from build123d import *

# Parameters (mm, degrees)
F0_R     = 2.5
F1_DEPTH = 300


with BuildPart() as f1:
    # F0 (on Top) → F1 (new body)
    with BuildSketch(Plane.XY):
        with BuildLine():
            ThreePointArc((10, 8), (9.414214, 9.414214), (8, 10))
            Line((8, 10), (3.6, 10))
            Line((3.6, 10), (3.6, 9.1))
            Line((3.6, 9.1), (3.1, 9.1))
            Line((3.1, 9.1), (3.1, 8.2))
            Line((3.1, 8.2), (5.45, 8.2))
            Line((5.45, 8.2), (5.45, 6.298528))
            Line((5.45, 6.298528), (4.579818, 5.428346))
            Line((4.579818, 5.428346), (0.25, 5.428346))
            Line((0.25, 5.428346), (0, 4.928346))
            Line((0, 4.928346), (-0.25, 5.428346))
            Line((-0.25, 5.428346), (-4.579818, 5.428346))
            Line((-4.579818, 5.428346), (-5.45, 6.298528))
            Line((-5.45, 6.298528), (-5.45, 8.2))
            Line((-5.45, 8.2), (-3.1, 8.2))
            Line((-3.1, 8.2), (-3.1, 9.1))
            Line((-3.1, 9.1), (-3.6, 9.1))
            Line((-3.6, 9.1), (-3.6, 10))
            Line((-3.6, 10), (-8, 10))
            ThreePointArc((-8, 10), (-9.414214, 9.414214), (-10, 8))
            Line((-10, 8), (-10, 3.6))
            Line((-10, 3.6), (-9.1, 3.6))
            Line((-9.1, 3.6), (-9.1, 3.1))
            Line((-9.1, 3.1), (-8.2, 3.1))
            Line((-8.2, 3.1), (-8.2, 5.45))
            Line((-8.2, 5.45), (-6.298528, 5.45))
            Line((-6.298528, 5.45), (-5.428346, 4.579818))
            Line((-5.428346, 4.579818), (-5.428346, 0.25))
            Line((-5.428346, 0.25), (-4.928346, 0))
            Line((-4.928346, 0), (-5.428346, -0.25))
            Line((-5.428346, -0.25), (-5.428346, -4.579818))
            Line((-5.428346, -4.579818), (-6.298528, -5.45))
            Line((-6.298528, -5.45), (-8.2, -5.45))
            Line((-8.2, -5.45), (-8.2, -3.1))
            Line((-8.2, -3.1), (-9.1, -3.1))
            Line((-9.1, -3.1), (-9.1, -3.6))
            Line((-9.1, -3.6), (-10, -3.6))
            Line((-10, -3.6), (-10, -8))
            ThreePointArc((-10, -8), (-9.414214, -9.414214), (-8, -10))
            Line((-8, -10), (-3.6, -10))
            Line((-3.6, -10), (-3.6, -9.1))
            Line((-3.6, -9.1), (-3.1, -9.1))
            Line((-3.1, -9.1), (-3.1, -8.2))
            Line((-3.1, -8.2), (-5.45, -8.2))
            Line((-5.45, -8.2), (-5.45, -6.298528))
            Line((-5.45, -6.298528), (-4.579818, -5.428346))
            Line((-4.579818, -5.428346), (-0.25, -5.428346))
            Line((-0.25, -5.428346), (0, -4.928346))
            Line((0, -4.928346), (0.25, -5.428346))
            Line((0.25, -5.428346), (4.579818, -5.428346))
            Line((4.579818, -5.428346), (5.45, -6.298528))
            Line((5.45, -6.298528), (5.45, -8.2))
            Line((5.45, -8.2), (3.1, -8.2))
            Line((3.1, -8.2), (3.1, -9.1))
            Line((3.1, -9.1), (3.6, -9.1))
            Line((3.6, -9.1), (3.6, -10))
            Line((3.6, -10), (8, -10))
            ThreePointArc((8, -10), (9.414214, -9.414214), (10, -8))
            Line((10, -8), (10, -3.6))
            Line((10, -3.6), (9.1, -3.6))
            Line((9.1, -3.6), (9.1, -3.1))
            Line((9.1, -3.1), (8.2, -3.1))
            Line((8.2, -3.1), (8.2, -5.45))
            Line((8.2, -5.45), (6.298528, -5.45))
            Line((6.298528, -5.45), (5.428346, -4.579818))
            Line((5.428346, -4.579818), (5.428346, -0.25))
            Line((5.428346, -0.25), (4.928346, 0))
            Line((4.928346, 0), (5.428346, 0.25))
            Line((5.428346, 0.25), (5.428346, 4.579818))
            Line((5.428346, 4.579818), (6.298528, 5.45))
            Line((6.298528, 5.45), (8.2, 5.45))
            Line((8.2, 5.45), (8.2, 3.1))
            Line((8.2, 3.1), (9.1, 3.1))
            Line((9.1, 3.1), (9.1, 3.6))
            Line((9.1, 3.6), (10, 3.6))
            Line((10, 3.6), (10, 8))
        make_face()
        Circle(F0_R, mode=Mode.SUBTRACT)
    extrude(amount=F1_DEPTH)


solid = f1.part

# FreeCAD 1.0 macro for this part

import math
import FreeCAD as App
import Part
import Sketcher

doc = App.newDocument("Part")
body = doc.addObject("PartDesign::Body", "Body")

# Sketch on XY plane
sketch1 = body.newObject("Sketcher::SketchObject", "Sketch")
sketch1.AttachmentSupport = (doc.getObject("XY_Plane"), [""])
sketch1.MapMode = "FlatFace"
sketch1.addGeometry(Part.ArcOfCircle(Part.Circle(App.Vector(8, 8, 0), App.Vector(0, 0, 1), 2), math.radians(0), math.radians(90)), False)
sketch1.addGeometry(Part.LineSegment(App.Vector(8, 10, 0), App.Vector(3.6, 10, 0)), False)
sketch1.addGeometry(Part.LineSegment(App.Vector(3.6, 10, 0), App.Vector(3.6, 9.1, 0)), False)
sketch1.addGeometry(Part.LineSegment(App.Vector(3.6, 9.1, 0), App.Vector(3.1, 9.1, 0)), False)
sketch1.addGeometry(Part.LineSegment(App.Vector(3.1, 9.1, 0), App.Vector(3.1, 8.2, 0)), False)
sketch1.addGeometry(Part.LineSegment(App.Vector(3.1, 8.2, 0), App.Vector(5.5, 8.2, 0)), False)
sketch1.addGeometry(Part.LineSegment(App.Vector(5.5, 8.2, 0), App.Vector(5.5, 6.3, 0)), False)
sketch1.addGeometry(Part.LineSegment(App.Vector(5.5, 6.3, 0), App.Vector(4.6, 5.4, 0)), False)
sketch1.addGeometry(Part.LineSegment(App.Vector(4.6, 5.4, 0), App.Vector(0.2, 5.4, 0)), False)
sketch1.addGeometry(Part.LineSegment(App.Vector(0.2, 5.4, 0), App.Vector(0, 4.9, 0)), False)
sketch1.addGeometry(Part.LineSegment(App.Vector(0, 4.9, 0), App.Vector(-0.2, 5.4, 0)), False)
sketch1.addGeometry(Part.LineSegment(App.Vector(-0.2, 5.4, 0), App.Vector(-4.6, 5.4, 0)), False)
sketch1.addGeometry(Part.LineSegment(App.Vector(-4.6, 5.4, 0), App.Vector(-5.5, 6.3, 0)), False)
sketch1.addGeometry(Part.LineSegment(App.Vector(-5.5, 6.3, 0), App.Vector(-5.5, 8.2, 0)), False)
sketch1.addGeometry(Part.LineSegment(App.Vector(-5.5, 8.2, 0), App.Vector(-3.1, 8.2, 0)), False)
sketch1.addGeometry(Part.LineSegment(App.Vector(-3.1, 8.2, 0), App.Vector(-3.1, 9.1, 0)), False)
sketch1.addGeometry(Part.LineSegment(App.Vector(-3.1, 9.1, 0), App.Vector(-3.6, 9.1, 0)), False)
sketch1.addGeometry(Part.LineSegment(App.Vector(-3.6, 9.1, 0), App.Vector(-3.6, 10, 0)), False)
sketch1.addGeometry(Part.LineSegment(App.Vector(-3.6, 10, 0), App.Vector(-8, 10, 0)), False)
sketch1.addGeometry(Part.ArcOfCircle(Part.Circle(App.Vector(-8, 8, 0), App.Vector(0, 0, 1), 2), math.radians(90), math.radians(180)), False)
sketch1.addGeometry(Part.LineSegment(App.Vector(-10, 8, 0), App.Vector(-10, 3.6, 0)), False)
sketch1.addGeometry(Part.LineSegment(App.Vector(-10, 3.6, 0), App.Vector(-9.1, 3.6, 0)), False)
sketch1.addGeometry(Part.LineSegment(App.Vector(-9.1, 3.6, 0), App.Vector(-9.1, 3.1, 0)), False)
sketch1.addGeometry(Part.LineSegment(App.Vector(-9.1, 3.1, 0), App.Vector(-8.2, 3.1, 0)), False)
sketch1.addGeometry(Part.LineSegment(App.Vector(-8.2, 3.1, 0), App.Vector(-8.2, 5.5, 0)), False)
sketch1.addGeometry(Part.LineSegment(App.Vector(-8.2, 5.5, 0), App.Vector(-6.3, 5.5, 0)), False)
sketch1.addGeometry(Part.LineSegment(App.Vector(-6.3, 5.5, 0), App.Vector(-5.4, 4.6, 0)), False)
sketch1.addGeometry(Part.LineSegment(App.Vector(-5.4, 4.6, 0), App.Vector(-5.4, 0.2, 0)), False)
sketch1.addGeometry(Part.LineSegment(App.Vector(-5.4, 0.2, 0), App.Vector(-4.9, 0, 0)), False)
sketch1.addGeometry(Part.LineSegment(App.Vector(-4.9, 0, 0), App.Vector(-5.4, -0.2, 0)), False)
sketch1.addGeometry(Part.LineSegment(App.Vector(-5.4, -0.2, 0), App.Vector(-5.4, -4.6, 0)), False)
sketch1.addGeometry(Part.LineSegment(App.Vector(-5.4, -4.6, 0), App.Vector(-6.3, -5.5, 0)), False)
sketch1.addGeometry(Part.LineSegment(App.Vector(-6.3, -5.5, 0), App.Vector(-8.2, -5.5, 0)), False)
sketch1.addGeometry(Part.LineSegment(App.Vector(-8.2, -5.5, 0), App.Vector(-8.2, -3.1, 0)), False)
sketch1.addGeometry(Part.LineSegment(App.Vector(-8.2, -3.1, 0), App.Vector(-9.1, -3.1, 0)), False)
sketch1.addGeometry(Part.LineSegment(App.Vector(-9.1, -3.1, 0), App.Vector(-9.1, -3.6, 0)), False)
sketch1.addGeometry(Part.LineSegment(App.Vector(-9.1, -3.6, 0), App.Vector(-10, -3.6, 0)), False)
sketch1.addGeometry(Part.LineSegment(App.Vector(-10, -3.6, 0), App.Vector(-10, -8, 0)), False)
sketch1.addGeometry(Part.ArcOfCircle(Part.Circle(App.Vector(-8, -8, 0), App.Vector(0, 0, 1), 2), math.radians(180), math.radians(270)), False)
sketch1.addGeometry(Part.LineSegment(App.Vector(-8, -10, 0), App.Vector(-3.6, -10, 0)), False)
sketch1.addGeometry(Part.LineSegment(App.Vector(-3.6, -10, 0), App.Vector(-3.6, -9.1, 0)), False)
sketch1.addGeometry(Part.LineSegment(App.Vector(-3.6, -9.1, 0), App.Vector(-3.1, -9.1, 0)), False)
sketch1.addGeometry(Part.LineSegment(App.Vector(-3.1, -9.1, 0), App.Vector(-3.1, -8.2, 0)), False)
sketch1.addGeometry(Part.LineSegment(App.Vector(-3.1, -8.2, 0), App.Vector(-5.5, -8.2, 0)), False)
sketch1.addGeometry(Part.LineSegment(App.Vector(-5.5, -8.2, 0), App.Vector(-5.5, -6.3, 0)), False)
sketch1.addGeometry(Part.LineSegment(App.Vector(-5.5, -6.3, 0), App.Vector(-4.6, -5.4, 0)), False)
sketch1.addGeometry(Part.LineSegment(App.Vector(-4.6, -5.4, 0), App.Vector(-0.2, -5.4, 0)), False)
sketch1.addGeometry(Part.LineSegment(App.Vector(-0.2, -5.4, 0), App.Vector(0, -4.9, 0)), False)
sketch1.addGeometry(Part.LineSegment(App.Vector(0, -4.9, 0), App.Vector(0.2, -5.4, 0)), False)
sketch1.addGeometry(Part.LineSegment(App.Vector(0.2, -5.4, 0), App.Vector(4.6, -5.4, 0)), False)
sketch1.addGeometry(Part.LineSegment(App.Vector(4.6, -5.4, 0), App.Vector(5.5, -6.3, 0)), False)
sketch1.addGeometry(Part.LineSegment(App.Vector(5.5, -6.3, 0), App.Vector(5.5, -8.2, 0)), False)
sketch1.addGeometry(Part.LineSegment(App.Vector(5.5, -8.2, 0), App.Vector(3.1, -8.2, 0)), False)
sketch1.addGeometry(Part.LineSegment(App.Vector(3.1, -8.2, 0), App.Vector(3.1, -9.1, 0)), False)
sketch1.addGeometry(Part.LineSegment(App.Vector(3.1, -9.1, 0), App.Vector(3.6, -9.1, 0)), False)
sketch1.addGeometry(Part.LineSegment(App.Vector(3.6, -9.1, 0), App.Vector(3.6, -10, 0)), False)
sketch1.addGeometry(Part.LineSegment(App.Vector(3.6, -10, 0), App.Vector(8, -10, 0)), False)
sketch1.addGeometry(Part.ArcOfCircle(Part.Circle(App.Vector(8, -8, 0), App.Vector(0, 0, 1), 2), math.radians(-90), math.radians(0)), False)
sketch1.addGeometry(Part.LineSegment(App.Vector(10, -8, 0), App.Vector(10, -3.6, 0)), False)
sketch1.addGeometry(Part.LineSegment(App.Vector(10, -3.6, 0), App.Vector(9.1, -3.6, 0)), False)
sketch1.addGeometry(Part.LineSegment(App.Vector(9.1, -3.6, 0), App.Vector(9.1, -3.1, 0)), False)
sketch1.addGeometry(Part.LineSegment(App.Vector(9.1, -3.1, 0), App.Vector(8.2, -3.1, 0)), False)
sketch1.addGeometry(Part.LineSegment(App.Vector(8.2, -3.1, 0), App.Vector(8.2, -5.5, 0)), False)
sketch1.addGeometry(Part.LineSegment(App.Vector(8.2, -5.5, 0), App.Vector(6.3, -5.5, 0)), False)
sketch1.addGeometry(Part.LineSegment(App.Vector(6.3, -5.5, 0), App.Vector(5.4, -4.6, 0)), False)
sketch1.addGeometry(Part.LineSegment(App.Vector(5.4, -4.6, 0), App.Vector(5.4, -0.2, 0)), False)
sketch1.addGeometry(Part.LineSegment(App.Vector(5.4, -0.2, 0), App.Vector(4.9, 0, 0)), False)
sketch1.addGeometry(Part.LineSegment(App.Vector(4.9, 0, 0), App.Vector(5.4, 0.2, 0)), False)
sketch1.addGeometry(Part.LineSegment(App.Vector(5.4, 0.2, 0), App.Vector(5.4, 4.6, 0)), False)
sketch1.addGeometry(Part.LineSegment(App.Vector(5.4, 4.6, 0), App.Vector(6.3, 5.5, 0)), False)
sketch1.addGeometry(Part.LineSegment(App.Vector(6.3, 5.5, 0), App.Vector(8.2, 5.5, 0)), False)
sketch1.addGeometry(Part.LineSegment(App.Vector(8.2, 5.5, 0), App.Vector(8.2, 3.1, 0)), False)
sketch1.addGeometry(Part.LineSegment(App.Vector(8.2, 3.1, 0), App.Vector(9.1, 3.1, 0)), False)
sketch1.addGeometry(Part.LineSegment(App.Vector(9.1, 3.1, 0), App.Vector(9.1, 3.6, 0)), False)
sketch1.addGeometry(Part.LineSegment(App.Vector(9.1, 3.6, 0), App.Vector(10, 3.6, 0)), False)
sketch1.addGeometry(Part.LineSegment(App.Vector(10, 3.6, 0), App.Vector(10, 8, 0)), False)
sketch1.addGeometry(Part.Circle(App.Vector(0, 0, 0), App.Vector(0, 0, 1), 2.5), False)
sketch1.addConstraint(Sketcher.Constraint("Tangent", 0, 2, 1, 1))
sketch1.addConstraint(Sketcher.Constraint("Coincident", 1, 2, 2, 1))
sketch1.addConstraint(Sketcher.Constraint("Coincident", 2, 2, 3, 1))
sketch1.addConstraint(Sketcher.Constraint("Coincident", 3, 2, 4, 1))
sketch1.addConstraint(Sketcher.Constraint("Coincident", 4, 2, 5, 1))
sketch1.addConstraint(Sketcher.Constraint("Coincident", 5, 2, 6, 1))
sketch1.addConstraint(Sketcher.Constraint("Coincident", 6, 2, 7, 1))
sketch1.addConstraint(Sketcher.Constraint("Coincident", 7, 2, 8, 1))
sketch1.addConstraint(Sketcher.Constraint("Coincident", 8, 2, 9, 1))
sketch1.addConstraint(Sketcher.Constraint("Coincident", 9, 2, 10, 1))
sketch1.addConstraint(Sketcher.Constraint("Coincident", 10, 2, 11, 1))
sketch1.addConstraint(Sketcher.Constraint("Coincident", 11, 2, 12, 1))
sketch1.addConstraint(Sketcher.Constraint("Coincident", 12, 2, 13, 1))
sketch1.addConstraint(Sketcher.Constraint("Coincident", 13, 2, 14, 1))
sketch1.addConstraint(Sketcher.Constraint("Coincident", 14, 2, 15, 1))
sketch1.addConstraint(Sketcher.Constraint("Coincident", 15, 2, 16, 1))
sketch1.addConstraint(Sketcher.Constraint("Coincident", 16, 2, 17, 1))
sketch1.addConstraint(Sketcher.Constraint("Coincident", 17, 2, 18, 1))
sketch1.addConstraint(Sketcher.Constraint("Tangent", 18, 2, 19, 1))
sketch1.addConstraint(Sketcher.Constraint("Tangent", 19, 2, 20, 1))
sketch1.addConstraint(Sketcher.Constraint("Coincident", 20, 2, 21, 1))
sketch1.addConstraint(Sketcher.Constraint("Coincident", 21, 2, 22, 1))
sketch1.addConstraint(Sketcher.Constraint("Coincident", 22, 2, 23, 1))
sketch1.addConstraint(Sketcher.Constraint("Coincident", 23, 2, 24, 1))
sketch1.addConstraint(Sketcher.Constraint("Coincident", 24, 2, 25, 1))
sketch1.addConstraint(Sketcher.Constraint("Coincident", 25, 2, 26, 1))
sketch1.addConstraint(Sketcher.Constraint("Coincident", 26, 2, 27, 1))
sketch1.addConstraint(Sketcher.Constraint("Coincident", 27, 2, 28, 1))
sketch1.addConstraint(Sketcher.Constraint("Coincident", 28, 2, 29, 1))
sketch1.addConstraint(Sketcher.Constraint("Coincident", 29, 2, 30, 1))
sketch1.addConstraint(Sketcher.Constraint("Coincident", 30, 2, 31, 1))
sketch1.addConstraint(Sketcher.Constraint("Coincident", 31, 2, 32, 1))
sketch1.addConstraint(Sketcher.Constraint("Coincident", 32, 2, 33, 1))
sketch1.addConstraint(Sketcher.Constraint("Coincident", 33, 2, 34, 1))
sketch1.addConstraint(Sketcher.Constraint("Coincident", 34, 2, 35, 1))
sketch1.addConstraint(Sketcher.Constraint("Coincident", 35, 2, 36, 1))
sketch1.addConstraint(Sketcher.Constraint("Coincident", 36, 2, 37, 1))
sketch1.addConstraint(Sketcher.Constraint("Tangent", 37, 2, 38, 1))
sketch1.addConstraint(Sketcher.Constraint("Tangent", 38, 2, 39, 1))
sketch1.addConstraint(Sketcher.Constraint("Coincident", 39, 2, 40, 1))
sketch1.addConstraint(Sketcher.Constraint("Coincident", 40, 2, 41, 1))
sketch1.addConstraint(Sketcher.Constraint("Coincident", 41, 2, 42, 1))
sketch1.addConstraint(Sketcher.Constraint("Coincident", 42, 2, 43, 1))
sketch1.addConstraint(Sketcher.Constraint("Coincident", 43, 2, 44, 1))
sketch1.addConstraint(Sketcher.Constraint("Coincident", 44, 2, 45, 1))
sketch1.addConstraint(Sketcher.Constraint("Coincident", 45, 2, 46, 1))
sketch1.addConstraint(Sketcher.Constraint("Coincident", 46, 2, 47, 1))
sketch1.addConstraint(Sketcher.Constraint("Coincident", 47, 2, 48, 1))
sketch1.addConstraint(Sketcher.Constraint("Coincident", 48, 2, 49, 1))
sketch1.addConstraint(Sketcher.Constraint("Coincident", 49, 2, 50, 1))
sketch1.addConstraint(Sketcher.Constraint("Coincident", 50, 2, 51, 1))
sketch1.addConstraint(Sketcher.Constraint("Coincident", 51, 2, 52, 1))
sketch1.addConstraint(Sketcher.Constraint("Coincident", 52, 2, 53, 1))
sketch1.addConstraint(Sketcher.Constraint("Coincident", 53, 2, 54, 1))
sketch1.addConstraint(Sketcher.Constraint("Coincident", 54, 2, 55, 1))
sketch1.addConstraint(Sketcher.Constraint("Coincident", 55, 2, 56, 1))
sketch1.addConstraint(Sketcher.Constraint("Tangent", 56, 2, 57, 1))
sketch1.addConstraint(Sketcher.Constraint("Tangent", 57, 2, 58, 1))
sketch1.addConstraint(Sketcher.Constraint("Coincident", 58, 2, 59, 1))
sketch1.addConstraint(Sketcher.Constraint("Coincident", 59, 2, 60, 1))
sketch1.addConstraint(Sketcher.Constraint("Coincident", 60, 2, 61, 1))
sketch1.addConstraint(Sketcher.Constraint("Coincident", 61, 2, 62, 1))
sketch1.addConstraint(Sketcher.Constraint("Coincident", 62, 2, 63, 1))
sketch1.addConstraint(Sketcher.Constraint("Coincident", 63, 2, 64, 1))
sketch1.addConstraint(Sketcher.Constraint("Coincident", 64, 2, 65, 1))
sketch1.addConstraint(Sketcher.Constraint("Coincident", 65, 2, 66, 1))
sketch1.addConstraint(Sketcher.Constraint("Coincident", 66, 2, 67, 1))
sketch1.addConstraint(Sketcher.Constraint("Coincident", 67, 2, 68, 1))
sketch1.addConstraint(Sketcher.Constraint("Coincident", 68, 2, 69, 1))
sketch1.addConstraint(Sketcher.Constraint("Coincident", 69, 2, 70, 1))
sketch1.addConstraint(Sketcher.Constraint("Coincident", 70, 2, 71, 1))
sketch1.addConstraint(Sketcher.Constraint("Coincident", 71, 2, 72, 1))
sketch1.addConstraint(Sketcher.Constraint("Coincident", 72, 2, 73, 1))
sketch1.addConstraint(Sketcher.Constraint("Coincident", 73, 2, 74, 1))
sketch1.addConstraint(Sketcher.Constraint("Coincident", 74, 2, 75, 1))
sketch1.addConstraint(Sketcher.Constraint("Tangent", 75, 2, 0, 1))
sketch1.addConstraint(Sketcher.Constraint("Horizontal", 1))
sketch1.addConstraint(Sketcher.Constraint("Vertical", 2))
sketch1.addConstraint(Sketcher.Constraint("Horizontal", 3))
sketch1.addConstraint(Sketcher.Constraint("Vertical", 4))
sketch1.addConstraint(Sketcher.Constraint("Horizontal", 5))
sketch1.addConstraint(Sketcher.Constraint("Vertical", 6))
sketch1.addConstraint(Sketcher.Constraint("Horizontal", 8))
sketch1.addConstraint(Sketcher.Constraint("Horizontal", 11))
sketch1.addConstraint(Sketcher.Constraint("Vertical", 13))
sketch1.addConstraint(Sketcher.Constraint("Horizontal", 14))
sketch1.addConstraint(Sketcher.Constraint("Vertical", 15))
sketch1.addConstraint(Sketcher.Constraint("Horizontal", 16))
sketch1.addConstraint(Sketcher.Constraint("Vertical", 17))
sketch1.addConstraint(Sketcher.Constraint("Horizontal", 18))
sketch1.addConstraint(Sketcher.Constraint("Vertical", 20))
sketch1.addConstraint(Sketcher.Constraint("Horizontal", 21))
sketch1.addConstraint(Sketcher.Constraint("Vertical", 22))
sketch1.addConstraint(Sketcher.Constraint("Horizontal", 23))
sketch1.addConstraint(Sketcher.Constraint("Vertical", 24))
sketch1.addConstraint(Sketcher.Constraint("Horizontal", 25))
sketch1.addConstraint(Sketcher.Constraint("Vertical", 27))
sketch1.addConstraint(Sketcher.Constraint("Vertical", 30))
sketch1.addConstraint(Sketcher.Constraint("Horizontal", 32))
sketch1.addConstraint(Sketcher.Constraint("Vertical", 33))
sketch1.addConstraint(Sketcher.Constraint("Horizontal", 34))
sketch1.addConstraint(Sketcher.Constraint("Vertical", 35))
sketch1.addConstraint(Sketcher.Constraint("Horizontal", 36))
sketch1.addConstraint(Sketcher.Constraint("Vertical", 37))
sketch1.addConstraint(Sketcher.Constraint("Horizontal", 39))
sketch1.addConstraint(Sketcher.Constraint("Vertical", 40))
sketch1.addConstraint(Sketcher.Constraint("Horizontal", 41))
sketch1.addConstraint(Sketcher.Constraint("Vertical", 42))
sketch1.addConstraint(Sketcher.Constraint("Horizontal", 43))
sketch1.addConstraint(Sketcher.Constraint("Vertical", 44))
sketch1.addConstraint(Sketcher.Constraint("Horizontal", 46))
sketch1.addConstraint(Sketcher.Constraint("Horizontal", 49))
sketch1.addConstraint(Sketcher.Constraint("Vertical", 51))
sketch1.addConstraint(Sketcher.Constraint("Horizontal", 52))
sketch1.addConstraint(Sketcher.Constraint("Vertical", 53))
sketch1.addConstraint(Sketcher.Constraint("Horizontal", 54))
sketch1.addConstraint(Sketcher.Constraint("Vertical", 55))
sketch1.addConstraint(Sketcher.Constraint("Horizontal", 56))
sketch1.addConstraint(Sketcher.Constraint("Vertical", 58))
sketch1.addConstraint(Sketcher.Constraint("Horizontal", 59))
sketch1.addConstraint(Sketcher.Constraint("Vertical", 60))
sketch1.addConstraint(Sketcher.Constraint("Horizontal", 61))
sketch1.addConstraint(Sketcher.Constraint("Vertical", 62))
sketch1.addConstraint(Sketcher.Constraint("Horizontal", 63))
sketch1.addConstraint(Sketcher.Constraint("Vertical", 65))
sketch1.addConstraint(Sketcher.Constraint("Vertical", 68))
sketch1.addConstraint(Sketcher.Constraint("Horizontal", 70))
sketch1.addConstraint(Sketcher.Constraint("Vertical", 71))
sketch1.addConstraint(Sketcher.Constraint("Horizontal", 72))
sketch1.addConstraint(Sketcher.Constraint("Vertical", 73))
sketch1.addConstraint(Sketcher.Constraint("Horizontal", 74))
sketch1.addConstraint(Sketcher.Constraint("Vertical", 75))
sketch1.addConstraint(Sketcher.Constraint("Coincident", 76, 3, -1, 1))
sketch1.addConstraint(Sketcher.Constraint("Equal", 0, 19))
sketch1.addConstraint(Sketcher.Constraint("Equal", 19, 38))
sketch1.addConstraint(Sketcher.Constraint("Equal", 38, 57))
sketch1.addConstraint(Sketcher.Constraint("Symmetric", 0, 3, 38, 3, -1, 1))
sketch1.addConstraint(Sketcher.Constraint("Symmetric", 19, 3, 57, 3, -1, 1))
sketch1.addConstraint(Sketcher.Constraint("Symmetric", 2, 2, 40, 2, -1, 1))
sketch1.addConstraint(Sketcher.Constraint("Symmetric", 4, 2, 42, 2, -1, 1))
sketch1.addConstraint(Sketcher.Constraint("Symmetric", 6, 2, 44, 2, -1, 1))
sketch1.addConstraint(Sketcher.Constraint("Symmetric", 7, 2, 45, 2, -1, 1))
sketch1.addConstraint(Sketcher.Constraint("Symmetric", 9, 2, 47, 2, -1, 1))
sketch1.addConstraint(Sketcher.Constraint("Symmetric", 10, 2, 48, 2, -1, 1))
sketch1.addConstraint(Sketcher.Constraint("Symmetric", 12, 2, 50, 2, -1, 1))
sketch1.addConstraint(Sketcher.Constraint("Symmetric", 14, 2, 52, 2, -1, 1))
sketch1.addConstraint(Sketcher.Constraint("Symmetric", 16, 2, 54, 2, -1, 1))
sketch1.addConstraint(Sketcher.Constraint("Symmetric", 21, 2, 59, 2, -1, 1))
sketch1.addConstraint(Sketcher.Constraint("Symmetric", 23, 2, 61, 2, -1, 1))
sketch1.addConstraint(Sketcher.Constraint("Symmetric", 25, 2, 63, 2, -1, 1))
sketch1.addConstraint(Sketcher.Constraint("Symmetric", 26, 2, 64, 2, -1, 1))
sketch1.addConstraint(Sketcher.Constraint("Symmetric", 28, 2, 66, 2, -1, 1))
sketch1.addConstraint(Sketcher.Constraint("Symmetric", 29, 2, 67, 2, -1, 1))
sketch1.addConstraint(Sketcher.Constraint("Symmetric", 31, 2, 69, 2, -1, 1))
sketch1.addConstraint(Sketcher.Constraint("Symmetric", 33, 2, 71, 2, -1, 1))
sketch1.addConstraint(Sketcher.Constraint("Symmetric", 35, 2, 73, 2, -1, 1))
sketch1.addConstraint(Sketcher.Constraint("Symmetric", 0, 3, 19, 3, -2))
sketch1.addConstraint(Sketcher.Constraint("Symmetric", 8, 2, 10, 2, -2))
sketch1.addConstraint(Sketcher.Constraint("Symmetric", 6, 2, 12, 2, -2))
sketch1.addConstraint(Sketcher.Constraint("Symmetric", 4, 2, 14, 2, -2))
sketch1.addConstraint(Sketcher.Constraint("Symmetric", 2, 2, 16, 2, -2))
sketch1.addConstraint(Sketcher.Constraint("Symmetric", 35, 2, 59, 2, -2))
sketch1.addConstraint(Sketcher.Constraint("Symmetric", 33, 2, 61, 2, -2))
sketch1.addConstraint(Sketcher.Constraint("Symmetric", 31, 2, 63, 2, -2))
sketch1.addConstraint(Sketcher.Constraint("Symmetric", 30, 2, 64, 2, -2))
sketch1.addConstraint(Sketcher.Constraint("PointOnObject", 9, 2, -2))
sketch1.addConstraint(Sketcher.Constraint("PointOnObject", 28, 2, -1))
sketch1.addConstraint(Sketcher.Constraint("Perpendicular", 7, 12))
sketch1.addConstraint(Sketcher.Constraint("Parallel", 12, 26))
sketch1.addConstraint(Sketcher.Constraint("Perpendicular", 9, 28))
sketch1.addConstraint(Sketcher.Constraint("Perpendicular", 10, 29))
sketch1.addConstraint(Sketcher.Constraint("Perpendicular", 26, 31))
sketch1.addConstraint(Sketcher.Constraint("Perpendicular", 28, 47))
sketch1.addConstraint(Sketcher.Constraint("Perpendicular", 45, 50))
sketch1.addConstraint(Sketcher.Constraint("Perpendicular", 47, 66))
sketch1.addConstraint(Sketcher.Constraint("Perpendicular", 64, 69))
sketch1.addConstraint(Sketcher.Constraint("Equal", 21, 23))
sketch1.addConstraint(Sketcher.Constraint("Equal", 74, 2))
sketch1.addConstraint(Sketcher.Constraint("Equal", 2, 4))
sketch1.addConstraint(Sketcher.Constraint("Equal", 70, 6))
sketch1.addConstraint(Sketcher.Constraint("Equal", 56, 20))
sketch1.addConstraint(Sketcher.Constraint("Equal", 54, 22))
sketch1.addConstraint(Sketcher.Constraint("Equal", 52, 24))
sketch1.addConstraint(Sketcher.Constraint("Equal", 49, 27))
sketch1.addConstraint(Sketcher.Constraint("Equal", 12, 26))
sketch1.addConstraint(Sketcher.Constraint("Equal", 10, 28))
sketch1.addConstraint(Sketcher.Constraint("Diameter", 76, 5.0))
sketch1.addConstraint(Sketcher.Constraint("Radius", 0, 1.999999))
sketch1.addConstraint(Sketcher.Constraint("DistanceX", 1, 2, 1, 1, 4.4))
sketch1.addConstraint(Sketcher.Constraint("DistanceX", 3, 2, 3, 1, 0.5))
sketch1.addConstraint(Sketcher.Constraint("DistanceX", 21, 1, 21, 2, 0.9))
sketch1.addConstraint(Sketcher.Constraint("DistanceX", -1, 1, 0, 3, 8.000001))
sketch1.addConstraint(Sketcher.Constraint("DistanceX", 5, 1, 5, 2, 2.35))
sketch1.addConstraint(Sketcher.Constraint("DistanceX", -1, 1, 8, 2, 0.25))
sketch1.addConstraint(Sketcher.Constraint("DistanceX", 8, 2, 8, 1, 4.329818))
sketch1.addConstraint(Sketcher.Constraint("DistanceX", 25, 1, 25, 2, 1.901472))
sketch1.addConstraint(Sketcher.Constraint("Distance", 9, 0.559017))
pad1 = body.newObject("PartDesign::Pad", "Pad")
pad1.Profile = sketch1
pad1.Length = 300

doc.recompute()
